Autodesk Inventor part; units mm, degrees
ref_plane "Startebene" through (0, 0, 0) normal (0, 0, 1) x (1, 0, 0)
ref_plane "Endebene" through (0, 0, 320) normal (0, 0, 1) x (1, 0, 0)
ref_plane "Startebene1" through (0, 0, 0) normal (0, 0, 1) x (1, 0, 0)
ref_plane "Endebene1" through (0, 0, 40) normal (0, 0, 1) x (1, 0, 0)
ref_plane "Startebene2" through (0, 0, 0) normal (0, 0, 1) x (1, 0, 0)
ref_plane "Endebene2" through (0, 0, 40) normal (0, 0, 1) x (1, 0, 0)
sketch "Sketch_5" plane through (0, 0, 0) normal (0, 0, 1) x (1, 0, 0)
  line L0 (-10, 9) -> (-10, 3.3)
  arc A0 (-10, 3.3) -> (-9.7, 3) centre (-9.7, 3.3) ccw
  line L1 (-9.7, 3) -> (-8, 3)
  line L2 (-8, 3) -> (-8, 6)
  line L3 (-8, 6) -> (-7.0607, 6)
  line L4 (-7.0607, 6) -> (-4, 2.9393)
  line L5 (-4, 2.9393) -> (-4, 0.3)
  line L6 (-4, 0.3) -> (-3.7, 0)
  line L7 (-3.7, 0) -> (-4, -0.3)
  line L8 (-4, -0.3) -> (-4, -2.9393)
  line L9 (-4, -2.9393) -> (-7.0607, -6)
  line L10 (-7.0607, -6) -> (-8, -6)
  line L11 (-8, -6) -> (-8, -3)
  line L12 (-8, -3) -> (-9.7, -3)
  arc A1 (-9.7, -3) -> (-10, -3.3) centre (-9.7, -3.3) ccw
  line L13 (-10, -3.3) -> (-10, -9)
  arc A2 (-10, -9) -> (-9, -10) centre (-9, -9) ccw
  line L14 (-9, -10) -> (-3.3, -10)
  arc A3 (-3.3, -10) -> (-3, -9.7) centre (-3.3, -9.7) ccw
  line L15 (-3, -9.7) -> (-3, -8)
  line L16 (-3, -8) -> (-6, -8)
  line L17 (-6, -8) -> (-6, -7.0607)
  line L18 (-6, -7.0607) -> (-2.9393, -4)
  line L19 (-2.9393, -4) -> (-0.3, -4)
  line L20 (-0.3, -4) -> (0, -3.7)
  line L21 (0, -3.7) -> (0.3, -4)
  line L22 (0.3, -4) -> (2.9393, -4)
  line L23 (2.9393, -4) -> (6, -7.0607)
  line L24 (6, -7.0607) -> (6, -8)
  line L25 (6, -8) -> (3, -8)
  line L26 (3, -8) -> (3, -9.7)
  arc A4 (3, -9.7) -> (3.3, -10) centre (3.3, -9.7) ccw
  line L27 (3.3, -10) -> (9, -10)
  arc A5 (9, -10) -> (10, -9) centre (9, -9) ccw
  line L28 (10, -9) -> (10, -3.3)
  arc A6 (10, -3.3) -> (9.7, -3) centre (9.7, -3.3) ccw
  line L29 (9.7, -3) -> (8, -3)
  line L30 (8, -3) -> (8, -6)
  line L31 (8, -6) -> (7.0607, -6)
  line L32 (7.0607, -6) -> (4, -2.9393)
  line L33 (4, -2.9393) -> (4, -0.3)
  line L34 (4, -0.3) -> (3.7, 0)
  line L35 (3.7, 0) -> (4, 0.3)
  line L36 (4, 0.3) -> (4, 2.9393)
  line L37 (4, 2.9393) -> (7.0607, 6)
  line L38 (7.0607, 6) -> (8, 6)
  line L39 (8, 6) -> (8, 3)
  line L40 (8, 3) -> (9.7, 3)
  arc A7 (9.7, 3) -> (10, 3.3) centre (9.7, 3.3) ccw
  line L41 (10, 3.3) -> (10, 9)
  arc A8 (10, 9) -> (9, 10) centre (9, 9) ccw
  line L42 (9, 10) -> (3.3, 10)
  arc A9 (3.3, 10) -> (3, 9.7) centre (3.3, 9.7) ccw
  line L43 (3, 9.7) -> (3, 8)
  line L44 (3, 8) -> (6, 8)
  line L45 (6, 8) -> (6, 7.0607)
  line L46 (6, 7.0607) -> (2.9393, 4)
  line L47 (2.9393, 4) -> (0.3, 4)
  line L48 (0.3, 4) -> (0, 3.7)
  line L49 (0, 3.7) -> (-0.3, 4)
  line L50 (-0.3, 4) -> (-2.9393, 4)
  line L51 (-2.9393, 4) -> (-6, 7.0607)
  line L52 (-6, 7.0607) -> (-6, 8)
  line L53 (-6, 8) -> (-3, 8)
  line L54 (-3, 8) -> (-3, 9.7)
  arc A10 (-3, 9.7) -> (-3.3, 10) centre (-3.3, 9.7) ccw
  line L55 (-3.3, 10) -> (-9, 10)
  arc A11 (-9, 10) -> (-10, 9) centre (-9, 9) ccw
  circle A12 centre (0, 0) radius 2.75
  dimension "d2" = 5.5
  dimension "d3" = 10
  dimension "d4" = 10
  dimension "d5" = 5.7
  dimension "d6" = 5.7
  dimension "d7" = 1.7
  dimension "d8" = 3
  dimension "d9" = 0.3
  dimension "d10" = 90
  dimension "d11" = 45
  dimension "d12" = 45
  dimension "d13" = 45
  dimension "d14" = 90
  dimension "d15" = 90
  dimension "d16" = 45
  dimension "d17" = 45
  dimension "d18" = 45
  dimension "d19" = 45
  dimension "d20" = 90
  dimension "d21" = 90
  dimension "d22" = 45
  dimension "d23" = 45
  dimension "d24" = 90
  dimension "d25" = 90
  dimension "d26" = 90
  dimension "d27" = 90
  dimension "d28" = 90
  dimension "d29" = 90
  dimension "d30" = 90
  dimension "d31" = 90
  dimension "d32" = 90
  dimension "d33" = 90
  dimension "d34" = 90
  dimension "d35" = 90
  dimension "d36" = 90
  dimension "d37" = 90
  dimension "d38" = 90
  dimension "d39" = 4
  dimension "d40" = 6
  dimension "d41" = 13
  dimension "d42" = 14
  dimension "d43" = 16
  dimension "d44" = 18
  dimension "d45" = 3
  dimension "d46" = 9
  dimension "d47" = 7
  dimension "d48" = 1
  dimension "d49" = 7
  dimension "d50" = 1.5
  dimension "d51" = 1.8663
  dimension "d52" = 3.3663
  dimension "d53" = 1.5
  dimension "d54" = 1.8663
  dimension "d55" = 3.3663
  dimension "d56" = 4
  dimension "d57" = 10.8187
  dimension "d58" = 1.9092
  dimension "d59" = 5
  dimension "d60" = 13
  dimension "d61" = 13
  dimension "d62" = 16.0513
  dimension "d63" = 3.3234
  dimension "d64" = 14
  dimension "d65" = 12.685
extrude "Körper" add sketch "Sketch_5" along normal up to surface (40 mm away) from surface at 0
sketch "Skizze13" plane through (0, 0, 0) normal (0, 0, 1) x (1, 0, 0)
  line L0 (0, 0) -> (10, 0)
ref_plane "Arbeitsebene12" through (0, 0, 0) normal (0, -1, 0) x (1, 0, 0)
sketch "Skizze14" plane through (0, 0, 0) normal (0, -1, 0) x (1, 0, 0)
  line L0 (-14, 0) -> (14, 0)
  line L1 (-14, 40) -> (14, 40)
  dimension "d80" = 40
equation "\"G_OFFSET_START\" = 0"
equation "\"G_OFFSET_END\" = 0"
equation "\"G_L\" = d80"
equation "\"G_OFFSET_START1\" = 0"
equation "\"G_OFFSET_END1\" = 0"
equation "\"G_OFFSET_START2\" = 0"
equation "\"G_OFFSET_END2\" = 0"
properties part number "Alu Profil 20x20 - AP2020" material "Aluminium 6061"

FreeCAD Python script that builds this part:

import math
import FreeCAD as App
import Part
import Sketcher

V = App.Vector
Q = App.Units.Quantity

doc = App.newDocument("Part")
body = doc.addObject("PartDesign::Body", "Body")

# Sketch on XY plane
sketch1 = body.newObject("Sketcher::SketchObject", "Sketch")
sketch1.AttachmentSupport = (doc.getObject("XY_Plane"), [""])
sketch1.MapMode = "FlatFace"
sketch1.addGeometry([
    Part.ArcOfCircle(Part.Circle(V(-9, 9, 0), V(0, 0, 1), 1), math.radians(90), math.radians(180)),  # 0
    Part.LineSegment(V(-10, 9, 0), V(-10, 3.3, 0)),  # 1
    Part.ArcOfCircle(Part.Circle(V(-9.7, 3.3, 0), V(0, 0, 1), 0.3), math.radians(180), math.radians(270)),  # 2
    Part.LineSegment(V(-9.7, 3, 0), V(-8, 3, 0)),  # 3
    Part.LineSegment(V(-8, 3, 0), V(-8, 6, 0)),  # 4
    Part.LineSegment(V(-8, 6, 0), V(-7.06, 6, 0)),  # 5
    Part.LineSegment(V(-7.06, 6, 0), V(-4, 2.94, 0)),  # 6
    Part.LineSegment(V(-4, 2.94, 0), V(-4, 0.3, 0)),  # 7
    Part.LineSegment(V(-4, 0.3, 0), V(-3.7, 0, 0)),  # 8
    Part.LineSegment(V(-3.7, 0, 0), V(-4, -0.3, 0)),  # 9
    Part.LineSegment(V(-4, -0.3, 0), V(-4, -2.94, 0)),  # 10
    Part.LineSegment(V(-4, -2.94, 0), V(-7.06, -6, 0)),  # 11
    Part.LineSegment(V(-7.06, -6, 0), V(-8, -6, 0)),  # 12
    Part.LineSegment(V(-8, -6, 0), V(-8, -3, 0)),  # 13
    Part.LineSegment(V(-8, -3, 0), V(-9.7, -3, 0)),  # 14
    Part.ArcOfCircle(Part.Circle(V(-9.7, -3.3, 0), V(0, 0, 1), 0.3), math.radians(90), math.radians(180)),  # 15
    Part.LineSegment(V(-10, -3.3, 0), V(-10, -9, 0)),  # 16
    Part.ArcOfCircle(Part.Circle(V(-9, -9, 0), V(0, 0, 1), 1), math.radians(180), math.radians(270)),  # 17
    Part.LineSegment(V(-9, -10, 0), V(-3.3, -10, 0)),  # 18
    Part.ArcOfCircle(Part.Circle(V(-3.3, -9.7, 0), V(0, 0, 1), 0.3), math.radians(-90), math.radians(0)),  # 19
    Part.LineSegment(V(-3, -9.7, 0), V(-3, -8, 0)),  # 20
    Part.LineSegment(V(-3, -8, 0), V(-6, -8, 0)),  # 21
    Part.LineSegment(V(-6, -8, 0), V(-6, -7.06, 0)),  # 22
    Part.LineSegment(V(-6, -7.06, 0), V(-2.94, -4, 0)),  # 23
    Part.LineSegment(V(-2.94, -4, 0), V(-0.3, -4, 0)),  # 24
    Part.LineSegment(V(-0.3, -4, 0), V(0, -3.7, 0)),  # 25
    Part.LineSegment(V(0, -3.7, 0), V(0.3, -4, 0)),  # 26
    Part.LineSegment(V(0.3, -4, 0), V(2.94, -4, 0)),  # 27
    Part.LineSegment(V(2.94, -4, 0), V(6, -7.06, 0)),  # 28
    Part.LineSegment(V(6, -7.06, 0), V(6, -8, 0)),  # 29
    Part.LineSegment(V(6, -8, 0), V(3, -8, 0)),  # 30
    Part.LineSegment(V(3, -8, 0), V(3, -9.7, 0)),  # 31
    Part.ArcOfCircle(Part.Circle(V(3.3, -9.7, 0), V(0, 0, 1), 0.3), math.radians(180), math.radians(270)),  # 32
    Part.LineSegment(V(3.3, -10, 0), V(9, -10, 0)),  # 33
    Part.ArcOfCircle(Part.Circle(V(9, -9, 0), V(0, 0, 1), 1), math.radians(-90), math.radians(0)),  # 34
    Part.LineSegment(V(10, -9, 0), V(10, -3.3, 0)),  # 35
    Part.ArcOfCircle(Part.Circle(V(9.7, -3.3, 0), V(0, 0, 1), 0.3), math.radians(0), math.radians(90)),  # 36
    Part.LineSegment(V(9.7, -3, 0), V(8, -3, 0)),  # 37
    Part.LineSegment(V(8, -3, 0), V(8, -6, 0)),  # 38
    Part.LineSegment(V(8, -6, 0), V(7.06, -6, 0)),  # 39
    Part.LineSegment(V(7.06, -6, 0), V(4, -2.94, 0)),  # 40
    Part.LineSegment(V(4, -2.94, 0), V(4, -0.3, 0)),  # 41
    Part.LineSegment(V(4, -0.3, 0), V(3.7, 0, 0)),  # 42
    Part.LineSegment(V(3.7, 0, 0), V(4, 0.3, 0)),  # 43
    Part.LineSegment(V(4, 0.3, 0), V(4, 2.94, 0)),  # 44
    Part.LineSegment(V(4, 2.94, 0), V(7.06, 6, 0)),  # 45
    Part.LineSegment(V(7.06, 6, 0), V(8, 6, 0)),  # 46
    Part.LineSegment(V(8, 6, 0), V(8, 3, 0)),  # 47
    Part.LineSegment(V(8, 3, 0), V(9.7, 3, 0)),  # 48
    Part.ArcOfCircle(Part.Circle(V(9.7, 3.3, 0), V(0, 0, 1), 0.3), math.radians(-90), math.radians(0)),  # 49
    Part.LineSegment(V(10, 3.3, 0), V(10, 9, 0)),  # 50
    Part.ArcOfCircle(Part.Circle(V(9, 9, 0), V(0, 0, 1), 1), math.radians(0), math.radians(90)),  # 51
    Part.LineSegment(V(9, 10, 0), V(3.3, 10, 0)),  # 52
    Part.ArcOfCircle(Part.Circle(V(3.3, 9.7, 0), V(0, 0, 1), 0.3), math.radians(90), math.radians(180)),  # 53
    Part.LineSegment(V(3, 9.7, 0), V(3, 8, 0)),  # 54
    Part.LineSegment(V(3, 8, 0), V(6, 8, 0)),  # 55
    Part.LineSegment(V(6, 8, 0), V(6, 7.06, 0)),  # 56
    Part.LineSegment(V(6, 7.06, 0), V(2.94, 4, 0)),  # 57
    Part.LineSegment(V(2.94, 4, 0), V(0.3, 4, 0)),  # 58
    Part.LineSegment(V(0.3, 4, 0), V(0, 3.7, 0)),  # 59
    Part.LineSegment(V(0, 3.7, 0), V(-0.3, 4, 0)),  # 60
    Part.LineSegment(V(-0.3, 4, 0), V(-2.94, 4, 0)),  # 61
    Part.LineSegment(V(-2.94, 4, 0), V(-6, 7.06, 0)),  # 62
    Part.LineSegment(V(-6, 7.06, 0), V(-6, 8, 0)),  # 63
    Part.LineSegment(V(-6, 8, 0), V(-3, 8, 0)),  # 64
    Part.LineSegment(V(-3, 8, 0), V(-3, 9.7, 0)),  # 65
    Part.ArcOfCircle(Part.Circle(V(-3.3, 9.7, 0), V(0, 0, 1), 0.3), math.radians(0), math.radians(90)),  # 66
    Part.LineSegment(V(-3.3, 10, 0), V(-9, 10, 0)),  # 67
    Part.Circle(V(0, 0, 0), V(0, 0, 1), 2.75),  # 68
], False)
sketch1.addConstraint([
    Sketcher.Constraint("Tangent", 0, 2, 1, 1),
    Sketcher.Constraint("Tangent", 1, 2, 2, 1),
    Sketcher.Constraint("Tangent", 2, 2, 3, 1),
    Sketcher.Constraint("Coincident", 3, 2, 4, 1),
    Sketcher.Constraint("Coincident", 4, 2, 5, 1),
    Sketcher.Constraint("Coincident", 5, 2, 6, 1),
    Sketcher.Constraint("Coincident", 6, 2, 7, 1),
    Sketcher.Constraint("Coincident", 7, 2, 8, 1),
    Sketcher.Constraint("Coincident", 8, 2, 9, 1),
    Sketcher.Constraint("Coincident", 9, 2, 10, 1),
    Sketcher.Constraint("Coincident", 10, 2, 11, 1),
    Sketcher.Constraint("Coincident", 11, 2, 12, 1),
    Sketcher.Constraint("Coincident", 12, 2, 13, 1),
    Sketcher.Constraint("Coincident", 13, 2, 14, 1),
    Sketcher.Constraint("Tangent", 14, 2, 15, 1),
    Sketcher.Constraint("Tangent", 15, 2, 16, 1),
    Sketcher.Constraint("Tangent", 16, 2, 17, 1),
    Sketcher.Constraint("Tangent", 17, 2, 18, 1),
    Sketcher.Constraint("Tangent", 18, 2, 19, 1),
    Sketcher.Constraint("Tangent", 19, 2, 20, 1),
    Sketcher.Constraint("Coincident", 20, 2, 21, 1),
    Sketcher.Constraint("Coincident", 21, 2, 22, 1),
    Sketcher.Constraint("Coincident", 22, 2, 23, 1),
    Sketcher.Constraint("Coincident", 23, 2, 24, 1),
    Sketcher.Constraint("Coincident", 24, 2, 25, 1),
    Sketcher.Constraint("Coincident", 25, 2, 26, 1),
    Sketcher.Constraint("Coincident", 26, 2, 27, 1),
    Sketcher.Constraint("Coincident", 27, 2, 28, 1),
    Sketcher.Constraint("Coincident", 28, 2, 29, 1),
    Sketcher.Constraint("Coincident", 29, 2, 30, 1),
    Sketcher.Constraint("Coincident", 30, 2, 31, 1),
    Sketcher.Constraint("Tangent", 31, 2, 32, 1),
    Sketcher.Constraint("Tangent", 32, 2, 33, 1),
    Sketcher.Constraint("Tangent", 33, 2, 34, 1),
    Sketcher.Constraint("Tangent", 34, 2, 35, 1),
    Sketcher.Constraint("Tangent", 35, 2, 36, 1),
    Sketcher.Constraint("Tangent", 36, 2, 37, 1),
    Sketcher.Constraint("Coincident", 37, 2, 38, 1),
    Sketcher.Constraint("Coincident", 38, 2, 39, 1),
    Sketcher.Constraint("Coincident", 39, 2, 40, 1),
    Sketcher.Constraint("Coincident", 40, 2, 41, 1),
    Sketcher.Constraint("Coincident", 41, 2, 42, 1),
    Sketcher.Constraint("Coincident", 42, 2, 43, 1),
    Sketcher.Constraint("Coincident", 43, 2, 44, 1),
    Sketcher.Constraint("Coincident", 44, 2, 45, 1),
    Sketcher.Constraint("Coincident", 45, 2, 46, 1),
    Sketcher.Constraint("Coincident", 46, 2, 47, 1),
    Sketcher.Constraint("Coincident", 47, 2, 48, 1),
    Sketcher.Constraint("Tangent", 48, 2, 49, 1),
    Sketcher.Constraint("Tangent", 49, 2, 50, 1),
    Sketcher.Constraint("Tangent", 50, 2, 51, 1),
    Sketcher.Constraint("Tangent", 51, 2, 52, 1),
    Sketcher.Constraint("Tangent", 52, 2, 53, 1),
    Sketcher.Constraint("Tangent", 53, 2, 54, 1),
    Sketcher.Constraint("Coincident", 54, 2, 55, 1),
    Sketcher.Constraint("Coincident", 55, 2, 56, 1),
    Sketcher.Constraint("Coincident", 56, 2, 57, 1),
    Sketcher.Constraint("Coincident", 57, 2, 58, 1),
    Sketcher.Constraint("Coincident", 58, 2, 59, 1),
    Sketcher.Constraint("Coincident", 59, 2, 60, 1),
    Sketcher.Constraint("Coincident", 60, 2, 61, 1),
    Sketcher.Constraint("Coincident", 61, 2, 62, 1),
    Sketcher.Constraint("Coincident", 62, 2, 63, 1),
    Sketcher.Constraint("Coincident", 63, 2, 64, 1),
    Sketcher.Constraint("Coincident", 64, 2, 65, 1),
    Sketcher.Constraint("Tangent", 65, 2, 66, 1),
    Sketcher.Constraint("Tangent", 66, 2, 67, 1),
    Sketcher.Constraint("Tangent", 67, 2, 0, 1),
    Sketcher.Constraint("Vertical", 1),
    Sketcher.Constraint("Horizontal", 3),
    Sketcher.Constraint("Vertical", 4),
    Sketcher.Constraint("Horizontal", 5),
    Sketcher.Constraint("Vertical", 7),
    Sketcher.Constraint("Vertical", 10),
    Sketcher.Constraint("Horizontal", 12),
    Sketcher.Constraint("Vertical", 13),
    Sketcher.Constraint("Horizontal", 14),
    Sketcher.Constraint("Vertical", 16),
    Sketcher.Constraint("Horizontal", 18),
    Sketcher.Constraint("Vertical", 20),
    Sketcher.Constraint("Horizontal", 21),
    Sketcher.Constraint("Vertical", 22),
    Sketcher.Constraint("Horizontal", 24),
    Sketcher.Constraint("Horizontal", 27),
    Sketcher.Constraint("Vertical", 29),
    Sketcher.Constraint("Horizontal", 30),
    Sketcher.Constraint("Vertical", 31),
    Sketcher.Constraint("Horizontal", 33),
    Sketcher.Constraint("Vertical", 35),
    Sketcher.Constraint("Horizontal", 37),
    Sketcher.Constraint("Vertical", 38),
    Sketcher.Constraint("Horizontal", 39),
    Sketcher.Constraint("Vertical", 41),
    Sketcher.Constraint("Vertical", 44),
    Sketcher.Constraint("Horizontal", 46),
    Sketcher.Constraint("Vertical", 47),
    Sketcher.Constraint("Horizontal", 48),
    Sketcher.Constraint("Vertical", 50),
    Sketcher.Constraint("Horizontal", 52),
    Sketcher.Constraint("Vertical", 54),
    Sketcher.Constraint("Horizontal", 55),
    Sketcher.Constraint("Vertical", 56),
    Sketcher.Constraint("Horizontal", 58),
    Sketcher.Constraint("Horizontal", 61),
    Sketcher.Constraint("Vertical", 63),
    Sketcher.Constraint("Horizontal", 64),
    Sketcher.Constraint("Vertical", 65),
    Sketcher.Constraint("Horizontal", 67),
    Sketcher.Constraint("Coincident", 68, 3, -1, 1),
    Sketcher.Constraint("Equal", 2, 15),
    Sketcher.Constraint("Equal", 0, 17),
    Sketcher.Constraint("Equal", 15, 19),
    Sketcher.Constraint("Equal", 19, 32),
    Sketcher.Constraint("Equal", 17, 34),
    Sketcher.Constraint("Equal", 32, 36),
    Sketcher.Constraint("Equal", 36, 49),
    Sketcher.Constraint("Equal", 34, 51),
    Sketcher.Constraint("Equal", 49, 53),
    Sketcher.Constraint("Equal", 53, 66),
    Sketcher.Constraint("Symmetric", 0, 3, 34, 3, -1, 1),
    Sketcher.Constraint("Symmetric", 15, 3, 49, 3, -1, 1),
    Sketcher.Constraint("Symmetric", 19, 3, 53, 3, -1, 1),
    Sketcher.Constraint("Symmetric", 3, 2, 37, 2, -1, 1),
    Sketcher.Constraint("Symmetric", 5, 2, 39, 2, -1, 1),
    Sketcher.Constraint("Symmetric", 6, 2, 40, 2, -1, 1),
    Sketcher.Constraint("Symmetric", 8, 2, 42, 2, -1, 1),
    Sketcher.Constraint("Symmetric", 9, 2, 43, 2, -1, 1),
    Sketcher.Constraint("Symmetric", 11, 2, 45, 2, -1, 1),
    Sketcher.Constraint("Symmetric", 21, 2, 55, 2, -1, 1),
    Sketcher.Constraint("Symmetric", 23, 2, 57, 2, -1, 1),
    Sketcher.Constraint("Symmetric", 25, 2, 59, 2, -1, 1),
    Sketcher.Constraint("Symmetric", 26, 2, 60, 2, -1, 1),
    Sketcher.Constraint("Symmetric", 28, 2, 62, 2, -1, 1),
    Sketcher.Constraint("Symmetric", 30, 2, 64, 2, -1, 1),
    Sketcher.Constraint("Symmetric", 19, 3, 32, 3, -2),
    Sketcher.Constraint("Symmetric", 15, 3, 36, 3, -2),
    Sketcher.Constraint("Symmetric", 24, 2, 26, 2, -2),
    Sketcher.Constraint("Symmetric", 22, 2, 28, 2, -2),
    Sketcher.Constraint("Symmetric", 12, 2, 38, 2, -2),
    Sketcher.Constraint("Symmetric", 10, 2, 40, 2, -2),
    Sketcher.Constraint("PointOnObject", 8, 2, -1),
    Sketcher.Constraint("PointOnObject", 25, 2, -2),
    Sketcher.Constraint("Parallel", 6, 8),
    Sketcher.Constraint("Perpendicular", 8, 9),
    Sketcher.Constraint("Parallel", 9, 11),
    Sketcher.Constraint("Parallel", 11, 23),
    Sketcher.Constraint("Parallel", 23, 25),
    Sketcher.Constraint("Perpendicular", 25, 26),
    Sketcher.Constraint("Parallel", 26, 28),
    Sketcher.Constraint("Parallel", 40, 42),
    Sketcher.Constraint("Parallel", 43, 45),
    Sketcher.Constraint("Parallel", 45, 57),
    Sketcher.Constraint("Parallel", 57, 59),
    Sketcher.Constraint("Parallel", 60, 62),
    Sketcher.Constraint("Horizontal", 21, 2, 29, 2),
    Sketcher.Constraint("Vertical", 38, 2, 46, 2),
    Sketcher.Constraint("Equal", 67, 1),
    Sketcher.Constraint("Equal", 64, 4),
    Sketcher.Constraint("Equal", 61, 7),
    Sketcher.Constraint("Equal", 48, 20),
    Sketcher.Constraint("Equal", 46, 22),
    Sketcher.Constraint("Equal", 11, 23),
    Sketcher.Constraint("Equal", 9, 25),
    Sketcher.Constraint("Radius", 0, Q("1 mm")),
    Sketcher.Constraint("Diameter", 68, Q("5.5 mm")),
    Sketcher.Constraint("Radius", 2, Q("0.3 mm")),
    Sketcher.Constraint("DistanceX", 21, 2, 21, 1, Q("3 mm")),
    Sketcher.Constraint("DistanceX", 3, 1, 3, 2, Q("1.7 mm")),
    Sketcher.Constraint("DistanceX", 18, 1, 18, 2, Q("5.7 mm")),
    Sketcher.Constraint("DistanceX", 0, 3, -1, 1, Q("9 mm")),
    Sketcher.Constraint("DistanceX", 6, 2, -1, 1, Q("4 mm")),
    Sketcher.Constraint("DistanceY", -1, 1, 7, 2, Q("0.3 mm")),
    Sketcher.Constraint("DistanceX", 5, 1, 5, 2, Q("0.9393 mm")),
])
pad1 = body.newObject("PartDesign::Pad", "Pad")
pad1.Profile = sketch1
pad1.Length = 40

doc.recompute()
